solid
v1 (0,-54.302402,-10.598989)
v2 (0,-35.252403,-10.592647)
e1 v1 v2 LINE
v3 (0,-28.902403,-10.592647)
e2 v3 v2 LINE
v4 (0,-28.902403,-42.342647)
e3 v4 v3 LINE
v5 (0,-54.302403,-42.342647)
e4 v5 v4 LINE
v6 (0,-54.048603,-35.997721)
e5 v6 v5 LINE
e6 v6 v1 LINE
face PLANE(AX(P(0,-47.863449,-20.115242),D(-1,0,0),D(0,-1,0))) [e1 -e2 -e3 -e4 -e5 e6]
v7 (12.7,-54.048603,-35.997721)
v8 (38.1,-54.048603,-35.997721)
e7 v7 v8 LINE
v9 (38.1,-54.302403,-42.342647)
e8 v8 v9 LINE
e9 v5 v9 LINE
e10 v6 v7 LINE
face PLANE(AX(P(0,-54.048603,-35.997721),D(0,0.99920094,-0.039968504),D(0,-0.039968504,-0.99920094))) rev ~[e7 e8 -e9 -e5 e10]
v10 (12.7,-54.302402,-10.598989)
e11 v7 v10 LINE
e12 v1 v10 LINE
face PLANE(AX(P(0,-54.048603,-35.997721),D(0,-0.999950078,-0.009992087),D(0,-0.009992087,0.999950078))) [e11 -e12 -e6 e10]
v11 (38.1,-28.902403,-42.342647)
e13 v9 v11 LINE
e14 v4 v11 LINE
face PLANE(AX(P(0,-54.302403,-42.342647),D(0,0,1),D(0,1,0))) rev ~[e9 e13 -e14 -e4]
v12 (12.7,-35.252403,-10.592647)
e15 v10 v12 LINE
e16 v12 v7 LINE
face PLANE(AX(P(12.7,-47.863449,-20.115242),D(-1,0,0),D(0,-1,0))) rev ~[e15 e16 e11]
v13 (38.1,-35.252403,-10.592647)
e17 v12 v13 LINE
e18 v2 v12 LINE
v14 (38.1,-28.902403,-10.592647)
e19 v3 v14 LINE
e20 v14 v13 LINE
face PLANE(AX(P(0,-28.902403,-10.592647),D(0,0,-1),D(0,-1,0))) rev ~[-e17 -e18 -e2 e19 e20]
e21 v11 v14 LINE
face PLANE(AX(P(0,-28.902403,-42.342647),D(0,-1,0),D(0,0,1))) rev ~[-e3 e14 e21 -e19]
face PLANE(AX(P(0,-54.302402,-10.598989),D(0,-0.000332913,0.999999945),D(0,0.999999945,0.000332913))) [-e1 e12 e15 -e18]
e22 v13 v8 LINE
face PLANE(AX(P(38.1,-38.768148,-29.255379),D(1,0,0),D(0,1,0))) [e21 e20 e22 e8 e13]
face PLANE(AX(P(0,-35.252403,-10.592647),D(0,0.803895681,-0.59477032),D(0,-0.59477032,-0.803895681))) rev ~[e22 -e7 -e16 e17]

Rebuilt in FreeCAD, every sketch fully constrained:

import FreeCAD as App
import Part
import Sketcher

V = App.Vector
Q = App.Units.Quantity


def add_polygon(sketch, points):
    """Adds a closed chain of lines whose ends are joined by coincident constraints."""
    first, n = sketch.GeometryCount, len(points)
    for a, b in zip(points, points[1:] + points[:1]):
        sketch.addGeometry(Part.LineSegment(App.Vector(*a, 0), App.Vector(*b, 0)), False)
    for i in range(n):
        sketch.addConstraint(Sketcher.Constraint("Coincident", first + i, 2, first + (i + 1) % n, 1))

doc = App.newDocument("Part")
body = doc.addObject("PartDesign::Body", "Body")

# Sketch on YZ plane
sketch1 = doc.addObject("Sketcher::SketchObject", "Sketch")
body.addObject(sketch1)
sketch1.AttachmentSupport = (doc.YZ_Plane, [""])
sketch1.MapMode = "FlatFace"
add_polygon(sketch1, [(-54.048603, -35.997721), (-54.302403, -42.342647), (-28.902403, -42.342647), (-28.902403, -10.592647), (-35.252403, -10.592647)])  # lines 0-4
sketch1.addConstraint([
    Sketcher.Constraint("Horizontal", 1),
    Sketcher.Constraint("Vertical", 2),
    Sketcher.Constraint("Horizontal", 3),
    Sketcher.Constraint("DistanceX", 1, 1, 1, 2, Q("1 in")),
    Sketcher.Constraint("DistanceX", 3, 2, 3, 1, Q("0.25 in")),
    Sketcher.Constraint("DistanceY", 2, 1, 2, 2, Q("1.25 in")),
    Sketcher.Constraint("Distance", 0, Q("0.25 in")),
    Sketcher.Constraint("DistanceX", 0, 2, 4, 2, Q("0.2538 mm")),
    Sketcher.Constraint("DistanceY", 4, 2, -1, 1, Q("35.997721 mm")),
    Sketcher.Constraint("DistanceX", 0, 2, -1, 1, Q("54.302403 mm")),
])
pad1 = doc.addObject("PartDesign::Pad", "Pad")
body.addObject(pad1)
pad1.Profile = sketch1
pad1.Length = Q("1.5 in")

# Sketch on YZ plane
sketch2 = doc.addObject("Sketcher::SketchObject", "Sketch001")
body.addObject(sketch2)
sketch2.AttachmentSupport = (doc.YZ_Plane, [""])
sketch2.MapMode = "FlatFace"
add_polygon(sketch2, [(-54.302402, -10.598989), (-35.252403, -10.592647), (-54.048603, -35.997721)])  # lines 0-2
sketch2.addConstraint([
    Sketcher.Constraint("Distance", 2, Q("1 in")),
    Sketcher.Constraint("Distance", 0, Q("0.75 in")),
    Sketcher.Constraint("DistanceX", 1, 2, 0, 2, Q("18.7962 mm")),
    Sketcher.Constraint("Distance", 1, Q("31.602451 mm")),
    Sketcher.Constraint("DistanceY", 1, 2, -1, 1, Q("35.997721 mm")),
    Sketcher.Constraint("DistanceX", 0, 2, -1, 1, Q("35.252403 mm")),
])
pad2 = doc.addObject("PartDesign::Pad", "Pad001")
body.addObject(pad2)
pad2.Profile = sketch2
pad2.Length = Q("0.5 in")

doc.recompute()
